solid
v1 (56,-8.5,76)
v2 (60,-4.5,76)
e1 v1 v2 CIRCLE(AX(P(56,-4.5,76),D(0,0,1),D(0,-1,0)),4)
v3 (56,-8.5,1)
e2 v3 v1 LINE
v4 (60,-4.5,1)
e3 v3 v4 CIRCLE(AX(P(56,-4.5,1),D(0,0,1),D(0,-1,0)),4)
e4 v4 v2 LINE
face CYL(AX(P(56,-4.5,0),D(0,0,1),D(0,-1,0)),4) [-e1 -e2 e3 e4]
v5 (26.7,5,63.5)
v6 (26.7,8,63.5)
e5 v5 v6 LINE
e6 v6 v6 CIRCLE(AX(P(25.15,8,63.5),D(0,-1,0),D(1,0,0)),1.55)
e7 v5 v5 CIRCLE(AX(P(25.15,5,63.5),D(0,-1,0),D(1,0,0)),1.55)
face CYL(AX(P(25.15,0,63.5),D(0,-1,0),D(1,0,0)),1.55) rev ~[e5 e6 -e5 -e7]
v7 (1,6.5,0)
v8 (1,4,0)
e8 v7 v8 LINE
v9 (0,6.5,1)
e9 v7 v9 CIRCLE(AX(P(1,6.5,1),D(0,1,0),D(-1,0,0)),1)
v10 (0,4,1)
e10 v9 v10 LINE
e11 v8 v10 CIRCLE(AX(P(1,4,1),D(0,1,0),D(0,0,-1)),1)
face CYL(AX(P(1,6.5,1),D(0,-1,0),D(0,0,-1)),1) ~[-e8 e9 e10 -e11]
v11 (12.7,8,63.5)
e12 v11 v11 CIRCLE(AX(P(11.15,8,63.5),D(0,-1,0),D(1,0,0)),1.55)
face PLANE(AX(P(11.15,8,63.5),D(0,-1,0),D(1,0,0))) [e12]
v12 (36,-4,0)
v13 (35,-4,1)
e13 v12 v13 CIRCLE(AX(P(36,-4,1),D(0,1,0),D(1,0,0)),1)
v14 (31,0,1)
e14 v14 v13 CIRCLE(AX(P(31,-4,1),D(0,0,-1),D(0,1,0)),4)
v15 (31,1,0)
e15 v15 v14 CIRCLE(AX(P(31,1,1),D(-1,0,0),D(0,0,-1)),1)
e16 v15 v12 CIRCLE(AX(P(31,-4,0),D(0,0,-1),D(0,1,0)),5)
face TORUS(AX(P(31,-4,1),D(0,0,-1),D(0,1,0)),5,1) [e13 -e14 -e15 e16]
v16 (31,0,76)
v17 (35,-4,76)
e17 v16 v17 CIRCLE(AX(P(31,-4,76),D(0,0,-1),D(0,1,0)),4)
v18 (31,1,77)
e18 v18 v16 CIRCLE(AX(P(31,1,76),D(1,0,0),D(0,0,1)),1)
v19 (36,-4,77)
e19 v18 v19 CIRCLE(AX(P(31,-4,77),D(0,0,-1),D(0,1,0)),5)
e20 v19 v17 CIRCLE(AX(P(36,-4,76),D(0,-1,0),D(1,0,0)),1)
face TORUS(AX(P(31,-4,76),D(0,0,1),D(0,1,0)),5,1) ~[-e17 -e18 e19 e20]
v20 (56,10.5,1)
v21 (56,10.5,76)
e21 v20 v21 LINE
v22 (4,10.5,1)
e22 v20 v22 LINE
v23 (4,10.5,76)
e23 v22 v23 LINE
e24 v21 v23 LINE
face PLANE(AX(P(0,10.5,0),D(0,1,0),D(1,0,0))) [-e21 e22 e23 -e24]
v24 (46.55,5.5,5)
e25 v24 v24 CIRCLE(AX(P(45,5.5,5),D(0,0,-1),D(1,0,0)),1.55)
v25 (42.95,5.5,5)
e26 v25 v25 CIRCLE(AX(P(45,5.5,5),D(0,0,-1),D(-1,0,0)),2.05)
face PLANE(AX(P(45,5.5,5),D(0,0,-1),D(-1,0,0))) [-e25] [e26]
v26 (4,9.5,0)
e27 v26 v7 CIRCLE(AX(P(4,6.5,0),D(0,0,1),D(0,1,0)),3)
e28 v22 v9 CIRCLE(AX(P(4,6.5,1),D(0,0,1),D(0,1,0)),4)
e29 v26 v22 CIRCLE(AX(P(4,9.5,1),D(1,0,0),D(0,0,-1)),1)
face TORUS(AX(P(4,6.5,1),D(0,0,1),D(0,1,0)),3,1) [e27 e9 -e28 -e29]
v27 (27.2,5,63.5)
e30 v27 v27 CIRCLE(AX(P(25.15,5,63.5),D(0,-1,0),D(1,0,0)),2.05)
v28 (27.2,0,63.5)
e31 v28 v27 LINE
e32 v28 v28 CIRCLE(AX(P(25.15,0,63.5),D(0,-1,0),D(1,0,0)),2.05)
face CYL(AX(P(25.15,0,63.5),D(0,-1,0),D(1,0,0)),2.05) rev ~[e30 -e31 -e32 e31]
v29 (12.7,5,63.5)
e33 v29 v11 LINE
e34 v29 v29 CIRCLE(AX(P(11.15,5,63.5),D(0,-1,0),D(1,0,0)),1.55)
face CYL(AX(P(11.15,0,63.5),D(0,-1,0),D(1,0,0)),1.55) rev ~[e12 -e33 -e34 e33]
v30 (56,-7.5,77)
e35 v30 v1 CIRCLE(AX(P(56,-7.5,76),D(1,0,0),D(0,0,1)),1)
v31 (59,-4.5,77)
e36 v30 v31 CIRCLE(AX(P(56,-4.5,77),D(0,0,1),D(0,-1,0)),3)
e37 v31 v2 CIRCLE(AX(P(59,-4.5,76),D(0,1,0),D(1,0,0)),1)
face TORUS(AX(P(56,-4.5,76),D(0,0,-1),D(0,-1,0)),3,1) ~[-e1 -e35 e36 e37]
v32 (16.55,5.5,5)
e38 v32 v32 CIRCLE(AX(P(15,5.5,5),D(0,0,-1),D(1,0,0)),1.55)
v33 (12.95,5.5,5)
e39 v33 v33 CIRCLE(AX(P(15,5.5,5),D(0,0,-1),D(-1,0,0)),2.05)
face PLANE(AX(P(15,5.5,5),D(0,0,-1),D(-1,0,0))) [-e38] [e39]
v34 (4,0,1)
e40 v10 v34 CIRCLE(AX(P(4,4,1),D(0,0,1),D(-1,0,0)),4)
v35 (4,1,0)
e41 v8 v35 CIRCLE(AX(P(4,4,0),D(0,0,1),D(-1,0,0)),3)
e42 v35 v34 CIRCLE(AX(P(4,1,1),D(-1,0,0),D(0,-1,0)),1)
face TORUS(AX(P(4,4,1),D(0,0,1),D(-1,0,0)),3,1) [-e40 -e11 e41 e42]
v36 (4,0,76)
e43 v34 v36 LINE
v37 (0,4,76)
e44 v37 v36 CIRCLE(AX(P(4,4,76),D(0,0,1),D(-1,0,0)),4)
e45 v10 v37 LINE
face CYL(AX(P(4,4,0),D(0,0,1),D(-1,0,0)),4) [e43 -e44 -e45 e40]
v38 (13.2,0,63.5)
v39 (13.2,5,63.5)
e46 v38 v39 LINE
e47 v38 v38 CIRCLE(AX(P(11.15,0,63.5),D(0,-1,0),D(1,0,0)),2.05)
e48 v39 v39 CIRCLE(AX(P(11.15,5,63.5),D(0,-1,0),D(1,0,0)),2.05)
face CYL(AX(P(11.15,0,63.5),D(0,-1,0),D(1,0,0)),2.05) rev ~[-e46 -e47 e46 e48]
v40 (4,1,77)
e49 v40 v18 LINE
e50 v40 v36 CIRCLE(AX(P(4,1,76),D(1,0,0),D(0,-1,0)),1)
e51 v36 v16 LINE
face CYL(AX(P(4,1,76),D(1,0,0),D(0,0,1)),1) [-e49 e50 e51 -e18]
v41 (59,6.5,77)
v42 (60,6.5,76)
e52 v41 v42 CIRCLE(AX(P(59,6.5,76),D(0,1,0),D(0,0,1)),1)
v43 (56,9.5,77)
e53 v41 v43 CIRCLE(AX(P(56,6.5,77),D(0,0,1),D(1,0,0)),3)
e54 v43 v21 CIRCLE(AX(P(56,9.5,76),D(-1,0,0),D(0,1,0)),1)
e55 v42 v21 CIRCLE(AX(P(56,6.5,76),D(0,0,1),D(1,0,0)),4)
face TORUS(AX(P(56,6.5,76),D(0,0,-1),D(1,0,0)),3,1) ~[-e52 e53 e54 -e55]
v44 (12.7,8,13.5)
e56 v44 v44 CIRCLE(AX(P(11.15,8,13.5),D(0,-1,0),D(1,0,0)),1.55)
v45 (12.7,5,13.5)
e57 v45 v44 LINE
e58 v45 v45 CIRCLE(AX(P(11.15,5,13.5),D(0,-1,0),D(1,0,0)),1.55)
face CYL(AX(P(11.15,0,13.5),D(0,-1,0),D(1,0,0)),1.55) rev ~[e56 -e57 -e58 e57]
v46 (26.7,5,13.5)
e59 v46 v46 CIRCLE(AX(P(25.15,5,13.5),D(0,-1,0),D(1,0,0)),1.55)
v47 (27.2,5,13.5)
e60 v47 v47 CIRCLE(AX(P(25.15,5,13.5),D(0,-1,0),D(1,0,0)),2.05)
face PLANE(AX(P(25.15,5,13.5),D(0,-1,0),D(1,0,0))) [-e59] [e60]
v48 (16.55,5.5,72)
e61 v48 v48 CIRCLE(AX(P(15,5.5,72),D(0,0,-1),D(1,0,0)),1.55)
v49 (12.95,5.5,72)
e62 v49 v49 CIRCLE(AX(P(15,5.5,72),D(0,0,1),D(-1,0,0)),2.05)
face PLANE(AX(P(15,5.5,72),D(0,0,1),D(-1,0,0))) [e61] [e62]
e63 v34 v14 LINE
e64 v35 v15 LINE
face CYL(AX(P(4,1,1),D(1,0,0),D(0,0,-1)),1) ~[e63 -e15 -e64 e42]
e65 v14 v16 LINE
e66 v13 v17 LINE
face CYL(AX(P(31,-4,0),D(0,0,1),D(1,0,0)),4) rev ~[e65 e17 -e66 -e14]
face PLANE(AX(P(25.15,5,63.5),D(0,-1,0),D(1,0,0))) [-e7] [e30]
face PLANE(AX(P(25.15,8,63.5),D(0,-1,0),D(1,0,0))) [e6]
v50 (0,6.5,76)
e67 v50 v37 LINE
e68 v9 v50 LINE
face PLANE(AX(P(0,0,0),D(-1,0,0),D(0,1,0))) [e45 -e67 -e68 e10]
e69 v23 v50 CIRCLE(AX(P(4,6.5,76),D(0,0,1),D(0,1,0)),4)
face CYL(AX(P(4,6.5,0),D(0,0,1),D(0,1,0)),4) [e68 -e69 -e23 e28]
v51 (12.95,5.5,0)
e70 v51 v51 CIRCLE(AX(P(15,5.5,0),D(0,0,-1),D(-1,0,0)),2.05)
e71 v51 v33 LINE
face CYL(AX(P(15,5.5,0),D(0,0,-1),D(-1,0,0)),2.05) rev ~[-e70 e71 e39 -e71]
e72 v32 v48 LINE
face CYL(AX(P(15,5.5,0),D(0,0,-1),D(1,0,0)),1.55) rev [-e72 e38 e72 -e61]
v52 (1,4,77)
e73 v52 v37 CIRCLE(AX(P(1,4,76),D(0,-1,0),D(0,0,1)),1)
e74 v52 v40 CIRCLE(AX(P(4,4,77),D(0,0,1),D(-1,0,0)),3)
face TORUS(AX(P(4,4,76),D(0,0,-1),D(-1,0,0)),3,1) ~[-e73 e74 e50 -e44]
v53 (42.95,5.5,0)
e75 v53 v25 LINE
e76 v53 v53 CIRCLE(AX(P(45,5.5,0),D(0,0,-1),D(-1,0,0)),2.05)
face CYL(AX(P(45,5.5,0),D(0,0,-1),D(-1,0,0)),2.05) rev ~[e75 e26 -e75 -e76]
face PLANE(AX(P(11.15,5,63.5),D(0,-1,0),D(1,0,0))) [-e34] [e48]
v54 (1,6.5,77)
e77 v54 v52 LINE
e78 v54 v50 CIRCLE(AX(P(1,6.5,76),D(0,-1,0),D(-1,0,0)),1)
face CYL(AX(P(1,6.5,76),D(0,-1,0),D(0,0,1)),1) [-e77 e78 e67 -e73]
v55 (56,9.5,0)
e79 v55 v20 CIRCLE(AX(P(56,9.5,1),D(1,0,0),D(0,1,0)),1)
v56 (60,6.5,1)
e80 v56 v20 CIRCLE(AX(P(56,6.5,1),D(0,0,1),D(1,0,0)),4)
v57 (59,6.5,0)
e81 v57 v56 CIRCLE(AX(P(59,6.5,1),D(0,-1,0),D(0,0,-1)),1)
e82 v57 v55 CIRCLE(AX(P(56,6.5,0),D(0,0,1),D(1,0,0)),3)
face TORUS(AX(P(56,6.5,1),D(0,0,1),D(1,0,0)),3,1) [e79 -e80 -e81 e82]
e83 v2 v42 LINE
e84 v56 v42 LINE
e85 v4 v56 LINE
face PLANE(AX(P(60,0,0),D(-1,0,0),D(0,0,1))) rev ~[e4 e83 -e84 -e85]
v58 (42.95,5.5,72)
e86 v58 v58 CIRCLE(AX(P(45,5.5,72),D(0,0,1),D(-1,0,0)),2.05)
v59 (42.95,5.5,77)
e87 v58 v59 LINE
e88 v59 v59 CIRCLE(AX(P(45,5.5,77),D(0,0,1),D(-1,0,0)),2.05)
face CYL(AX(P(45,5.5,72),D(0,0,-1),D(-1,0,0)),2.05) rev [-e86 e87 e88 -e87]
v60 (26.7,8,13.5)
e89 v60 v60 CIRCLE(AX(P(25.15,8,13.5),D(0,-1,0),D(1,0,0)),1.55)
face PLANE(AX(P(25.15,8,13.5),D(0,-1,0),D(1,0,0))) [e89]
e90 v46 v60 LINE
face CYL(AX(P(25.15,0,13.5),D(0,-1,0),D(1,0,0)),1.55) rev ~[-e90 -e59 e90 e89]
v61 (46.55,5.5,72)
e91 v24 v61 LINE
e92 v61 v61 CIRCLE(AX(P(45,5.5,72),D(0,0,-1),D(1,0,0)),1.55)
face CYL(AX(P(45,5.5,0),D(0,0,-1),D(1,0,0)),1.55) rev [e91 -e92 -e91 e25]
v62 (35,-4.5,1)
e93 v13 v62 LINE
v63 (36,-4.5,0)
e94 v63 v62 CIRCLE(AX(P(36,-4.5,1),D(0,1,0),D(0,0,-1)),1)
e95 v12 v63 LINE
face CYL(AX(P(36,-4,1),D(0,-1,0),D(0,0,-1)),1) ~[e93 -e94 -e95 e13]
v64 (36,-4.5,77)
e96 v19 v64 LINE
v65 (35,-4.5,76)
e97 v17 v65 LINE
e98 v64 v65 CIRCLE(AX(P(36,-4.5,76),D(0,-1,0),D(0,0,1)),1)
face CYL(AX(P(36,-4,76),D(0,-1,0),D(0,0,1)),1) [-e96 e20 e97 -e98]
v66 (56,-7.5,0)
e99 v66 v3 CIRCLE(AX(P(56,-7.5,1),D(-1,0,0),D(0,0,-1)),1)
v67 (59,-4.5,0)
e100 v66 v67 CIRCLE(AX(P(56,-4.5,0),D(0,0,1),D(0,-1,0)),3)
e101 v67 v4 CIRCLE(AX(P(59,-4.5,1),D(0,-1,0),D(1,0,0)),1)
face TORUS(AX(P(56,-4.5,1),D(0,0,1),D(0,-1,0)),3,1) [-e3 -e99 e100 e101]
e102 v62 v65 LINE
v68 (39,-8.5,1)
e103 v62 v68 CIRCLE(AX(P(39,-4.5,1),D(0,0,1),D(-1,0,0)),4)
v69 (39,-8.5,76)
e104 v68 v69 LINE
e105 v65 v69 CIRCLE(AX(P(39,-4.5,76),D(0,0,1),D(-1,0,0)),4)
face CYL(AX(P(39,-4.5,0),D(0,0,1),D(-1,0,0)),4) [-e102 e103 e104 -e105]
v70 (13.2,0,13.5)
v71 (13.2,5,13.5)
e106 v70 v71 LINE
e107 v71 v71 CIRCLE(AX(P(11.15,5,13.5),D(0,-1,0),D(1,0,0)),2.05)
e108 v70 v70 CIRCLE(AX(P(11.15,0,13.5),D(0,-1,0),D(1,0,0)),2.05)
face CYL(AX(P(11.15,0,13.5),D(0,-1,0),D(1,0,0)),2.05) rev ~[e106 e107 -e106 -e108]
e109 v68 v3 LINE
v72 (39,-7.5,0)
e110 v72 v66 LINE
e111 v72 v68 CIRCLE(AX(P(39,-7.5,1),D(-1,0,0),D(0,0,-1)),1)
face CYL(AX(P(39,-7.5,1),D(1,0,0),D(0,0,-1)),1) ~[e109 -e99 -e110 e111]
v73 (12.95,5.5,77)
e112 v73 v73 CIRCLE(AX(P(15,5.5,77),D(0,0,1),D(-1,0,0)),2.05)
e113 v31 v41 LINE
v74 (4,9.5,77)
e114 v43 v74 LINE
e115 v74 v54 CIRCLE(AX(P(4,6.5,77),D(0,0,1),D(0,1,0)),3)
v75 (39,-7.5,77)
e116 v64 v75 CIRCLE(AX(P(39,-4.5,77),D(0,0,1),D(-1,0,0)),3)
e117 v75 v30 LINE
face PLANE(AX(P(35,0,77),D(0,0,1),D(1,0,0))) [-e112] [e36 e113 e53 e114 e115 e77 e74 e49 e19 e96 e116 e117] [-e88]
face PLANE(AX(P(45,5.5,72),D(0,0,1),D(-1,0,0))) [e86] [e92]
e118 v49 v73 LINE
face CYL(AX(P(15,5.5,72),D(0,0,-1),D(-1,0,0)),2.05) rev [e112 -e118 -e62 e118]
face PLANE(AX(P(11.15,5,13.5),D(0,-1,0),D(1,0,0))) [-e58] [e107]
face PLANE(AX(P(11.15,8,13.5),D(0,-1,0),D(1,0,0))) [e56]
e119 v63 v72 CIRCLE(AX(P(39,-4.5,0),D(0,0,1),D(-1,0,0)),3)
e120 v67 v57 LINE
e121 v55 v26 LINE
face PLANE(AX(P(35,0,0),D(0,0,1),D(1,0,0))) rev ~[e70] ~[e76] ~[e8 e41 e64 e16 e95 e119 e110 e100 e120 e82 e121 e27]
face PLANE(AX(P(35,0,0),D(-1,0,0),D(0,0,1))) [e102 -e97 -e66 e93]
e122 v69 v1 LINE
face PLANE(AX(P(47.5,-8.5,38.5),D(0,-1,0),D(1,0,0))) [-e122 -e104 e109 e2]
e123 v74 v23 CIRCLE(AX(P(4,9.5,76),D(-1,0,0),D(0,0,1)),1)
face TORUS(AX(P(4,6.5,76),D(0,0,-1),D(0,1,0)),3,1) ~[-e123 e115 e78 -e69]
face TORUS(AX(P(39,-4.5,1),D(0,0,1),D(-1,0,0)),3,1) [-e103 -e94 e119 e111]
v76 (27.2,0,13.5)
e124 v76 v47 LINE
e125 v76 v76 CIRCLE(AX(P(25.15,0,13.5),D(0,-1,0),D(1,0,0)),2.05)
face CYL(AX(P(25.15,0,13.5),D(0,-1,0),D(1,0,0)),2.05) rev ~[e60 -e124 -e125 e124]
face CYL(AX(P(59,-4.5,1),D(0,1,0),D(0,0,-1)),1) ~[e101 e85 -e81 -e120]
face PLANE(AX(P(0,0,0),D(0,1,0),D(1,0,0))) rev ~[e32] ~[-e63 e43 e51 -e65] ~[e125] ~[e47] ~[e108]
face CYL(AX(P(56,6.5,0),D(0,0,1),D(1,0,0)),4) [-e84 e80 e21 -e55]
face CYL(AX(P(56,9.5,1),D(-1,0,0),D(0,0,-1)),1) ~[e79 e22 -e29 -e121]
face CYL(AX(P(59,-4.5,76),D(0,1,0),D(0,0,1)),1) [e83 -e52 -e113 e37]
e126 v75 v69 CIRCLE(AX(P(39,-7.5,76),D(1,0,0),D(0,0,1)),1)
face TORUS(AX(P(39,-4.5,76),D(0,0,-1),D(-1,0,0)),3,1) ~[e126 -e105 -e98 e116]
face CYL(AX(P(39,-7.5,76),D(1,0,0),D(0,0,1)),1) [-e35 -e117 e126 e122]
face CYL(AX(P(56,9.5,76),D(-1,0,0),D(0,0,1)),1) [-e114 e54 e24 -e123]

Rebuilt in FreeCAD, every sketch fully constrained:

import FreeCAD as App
import Part
import Sketcher
from FreeCAD import Vector


def edges_at(feature, points):
    """Names of the edges that pass closest to the given points."""
    edges = feature.Shape.Edges
    near = lambda p: min(range(len(edges)), key=lambda i: edges[i].distToShape(Part.Vertex(*p))[0])
    return sorted({f"Edge{near(p) + 1}" for p in points})


def add_polygon(sketch, points):
    """Adds a closed chain of lines whose ends are joined by coincident constraints."""
    first, n = sketch.GeometryCount, len(points)
    for a, b in zip(points, points[1:] + points[:1]):
        sketch.addGeometry(Part.LineSegment(App.Vector(*a, 0), App.Vector(*b, 0)), False)
    for i in range(n):
        sketch.addConstraint(Sketcher.Constraint("Coincident", first + i, 2, first + (i + 1) % n, 1))

doc = App.newDocument("Part")
body = doc.addObject("PartDesign::Body", "Body")

sketch1 = body.newObject("Sketcher::SketchObject", "Sketch")
sketch1.AttachmentSupport = (doc.getObject("XY_Plane"), [""])
sketch1.MapMode = "FlatFace"
add_polygon(sketch1, [(0, 10.5), (0, 0), (60, 0), (60, 10.5)])
sketch1.addGeometry(Part.Circle(Vector(15, 5.5, 0), Vector(0, 0, 1), 1.55), False)
sketch1.addGeometry(Part.Circle(Vector(45, 5.5, 0), Vector(0, 0, 1), 1.55), False)
sketch1.addConstraint([
    Sketcher.Constraint("Vertical", 0),
    Sketcher.Constraint("Horizontal", 1),
    Sketcher.Constraint("Vertical", 2),
    Sketcher.Constraint("Horizontal", 3),
    Sketcher.Constraint("Coincident", 0, 2, -1, 1),
    Sketcher.Constraint("Equal", 4, 5),
    Sketcher.Constraint("Horizontal", 4, 3, 5, 3),
    Sketcher.Constraint("Diameter", 4, 3.1),
    Sketcher.Constraint("DistanceX", 1, 1, 1, 2, 60.0),
    Sketcher.Constraint("DistanceY", 0, 2, 0, 1, 10.5),
    Sketcher.Constraint("DistanceX", -1, 1, 4, 3, 15.0),
    Sketcher.Constraint("DistanceX", -1, 1, 5, 3, 45.0),
    Sketcher.Constraint("DistanceY", 5, 3, 2, 2, 5.0),
])
pad1 = body.newObject("PartDesign::Pad", "Pad")
pad1.Profile = sketch1
pad1.Length = 77

sketch2 = body.newObject("Sketcher::SketchObject", "Sketch001")
sketch2.AttachmentSupport = (doc.getObject("XZ_Plane"), [""])
sketch2.MapMode = "FlatFace"
add_polygon(sketch2, [(35, 77), (35, 0), (60, 0), (60, 77)])
sketch2.addConstraint([
    Sketcher.Constraint("Vertical", 0),
    Sketcher.Constraint("Horizontal", 1),
    Sketcher.Constraint("Vertical", 2),
    Sketcher.Constraint("Horizontal", 3),
    Sketcher.Constraint("PointOnObject", 0, 2, -1),
    Sketcher.Constraint("DistanceX", 1, 1, 1, 2, 25.0),
    Sketcher.Constraint("DistanceY", 0, 2, 0, 1, 77.0),
    Sketcher.Constraint("DistanceX", -1, 1, 0, 2, 35.0),
])
pad2 = body.newObject("PartDesign::Pad", "Pad001")
pad2.Profile = sketch2
pad2.Length = 8.5
doc.recompute()

fillet = body.newObject("PartDesign::Fillet", "Fillet")
fillet.Base = (pad2, edges_at(pad2, [
    (35, 0, 38.5),
    (60, -8.5, 38.5),
    (35, -8.5, 38.5),
    (0, 10.5, 38.5),
    (60, 10.5, 38.5),
    (0, 0, 38.5),
]))
fillet.Radius = 4

sketch3 = body.newObject("Sketcher::SketchObject", "Sketch002")
sketch3.AttachmentSupport = (doc.getObject("XZ_Plane"), [""])
sketch3.MapMode = "FlatFace"
sketch3.addGeometry([
    Part.Circle(Vector(11.15, 63.5, 0), Vector(0, 0, 1), 1.55),
    Part.Circle(Vector(11.15, 13.5, 0), Vector(0, 0, 1), 1.55),
    Part.Circle(Vector(25.15, 63.5, 0), Vector(0, 0, 1), 1.55),
    Part.Circle(Vector(25.15, 13.5, 0), Vector(0, 0, 1), 1.55),
], False)
sketch3.addConstraint([
    Sketcher.Constraint("Equal", 0, 1),
    Sketcher.Constraint("Equal", 1, 2),
    Sketcher.Constraint("Equal", 2, 3),
    Sketcher.Constraint("Horizontal", 0, 3, 2, 3),
    Sketcher.Constraint("Horizontal", 1, 3, 3, 3),
    Sketcher.Constraint("Vertical", 0, 3, 1, 3),
    Sketcher.Constraint("Vertical", 2, 3, 3, 3),
    Sketcher.Constraint("Diameter", 0, 3.1),
    Sketcher.Constraint("DistanceY", 1, 3, 0, 3, 50.0),
    Sketcher.Constraint("DistanceX", 0, 3, 2, 3, 14.0),
    Sketcher.Constraint("DistanceY", -1, 1, 0, 3, 63.5),
    Sketcher.Constraint("DistanceX", -1, 1, 0, 3, 11.15),
])
pocket1 = body.newObject("PartDesign::Pocket", "Pocket")
pocket1.Profile = sketch3
pocket1.Length = 8

sketch4 = body.newObject("Sketcher::SketchObject", "Sketch003")
sketch4.AttachmentSupport = (doc.getObject("XY_Plane"), [""])
sketch4.MapMode = "FlatFace"
sketch4.addGeometry([
    Part.Circle(Vector(45, 5.5, 0), Vector(0, 0, 1), 2.05),
    Part.Circle(Vector(15, 5.5, 0), Vector(0, 0, 1), 2.05),
], False)
sketch4.addConstraint([
    Sketcher.Constraint("Equal", 0, 1),
    Sketcher.Constraint("Horizontal", 0, 3, 1, 3),
    Sketcher.Constraint("Diameter", 0, 4.1),
    Sketcher.Constraint("DistanceX", -1, 1, 0, 3, 45.0),
    Sketcher.Constraint("DistanceX", -1, 1, 1, 3, 15.0),
    Sketcher.Constraint("DistanceY", -1, 1, 0, 3, 5.5),
])
pocket2 = body.newObject("PartDesign::Pocket", "Pocket001")
pocket2.Profile = sketch4
pocket2.Length = 5
pocket2.Reversed = True

sketch5 = body.newObject("Sketcher::SketchObject", "Sketch004")
sketch5.AttachmentSupport = (doc.getObject("XY_Plane"), [""])
sketch5.MapMode = "FlatFace"
sketch5.AttachmentOffset = App.Placement(Vector(0, 0, 72), App.Rotation())
sketch5.addGeometry([
    Part.Circle(Vector(15, 5.5, 0), Vector(0, 0, 1), 2.05),
    Part.Circle(Vector(45, 5.5, 0), Vector(0, 0, 1), 2.05),
], False)
sketch5.addConstraint([
    Sketcher.Constraint("Equal", 0, 1),
    Sketcher.Constraint("Horizontal", 0, 3, 1, 3),
    Sketcher.Constraint("Diameter", 0, 4.1),
    Sketcher.Constraint("DistanceX", -1, 1, 0, 3, 15.0),
    Sketcher.Constraint("DistanceX", -1, 1, 1, 3, 45.0),
    Sketcher.Constraint("DistanceY", -1, 1, 0, 3, 5.5),
])
pocket3 = body.newObject("PartDesign::Pocket", "Pocket002")
pocket3.Profile = sketch5
pocket3.Length = 5
pocket3.Reversed = True
doc.recompute()

fillet2 = body.newObject("PartDesign::Fillet", "Fillet001")
fillet2.Base = (pocket3, edges_at(pocket3, [
    (47.5, -8.5, 77),
    (47.5, -8.5, 0),
    (0, 5.25, 0),
    (30, 10.5, 0),
    (60, 1, 0),
    (35, -4.25, 0),
    (17.5, 0, 0),
    (1.172, 9.328, 0),
    (1.172, 1.172, 0),
    (58.828, 9.328, 0),
    (58.828, -7.328, 0),
    (36.172, -7.328, 0),
    (35, -4.25, 77),
    (0, 5.25, 77),
    (17.5, 0, 77),
    (60, 1, 77),
    (30, 10.5, 77),
    (1.172, 9.328, 77),
    (1.172, 1.172, 77),
    (58.828, 9.328, 77),
    (58.828, -7.328, 77),
    (36.172, -7.328, 77),
    (33.828, -1.172, 0),
    (33.828, -1.172, 77),
]))
fillet2.Radius = 1

sketch6 = body.newObject("Sketcher::SketchObject", "Sketch005")
sketch6.AttachmentSupport = (doc.getObject("XZ_Plane"), [""])
sketch6.MapMode = "FlatFace"
sketch6.addGeometry([
    Part.Circle(Vector(11.15, 63.5, 0), Vector(0, 0, 1), 2.05),
    Part.Circle(Vector(25.15, 63.5, 0), Vector(0, 0, 1), 2.05),
    Part.Circle(Vector(25.15, 13.5, 0), Vector(0, 0, 1), 2.05),
    Part.Circle(Vector(11.15, 13.5, 0), Vector(0, 0, 1), 2.05),
], False)
sketch6.addConstraint([
    Sketcher.Constraint("Equal", 0, 1),
    Sketcher.Constraint("Equal", 1, 2),
    Sketcher.Constraint("Equal", 2, 3),
    Sketcher.Constraint("Horizontal", 0, 3, 1, 3),
    Sketcher.Constraint("Horizontal", 2, 3, 3, 3),
    Sketcher.Constraint("Vertical", 1, 3, 2, 3),
    Sketcher.Constraint("Vertical", 0, 3, 3, 3),
    Sketcher.Constraint("Diameter", 0, 4.1),
    Sketcher.Constraint("DistanceX", 0, 3, 1, 3, 14.0),
    Sketcher.Constraint("DistanceY", 2, 3, 1, 3, 50.0),
    Sketcher.Constraint("DistanceY", -1, 1, 0, 3, 63.5),
    Sketcher.Constraint("DistanceX", -1, 1, 0, 3, 11.15),
])
pocket4 = body.newObject("PartDesign::Pocket", "Pocket003")
pocket4.Profile = sketch6
pocket4.Length = 5

doc.recompute()
